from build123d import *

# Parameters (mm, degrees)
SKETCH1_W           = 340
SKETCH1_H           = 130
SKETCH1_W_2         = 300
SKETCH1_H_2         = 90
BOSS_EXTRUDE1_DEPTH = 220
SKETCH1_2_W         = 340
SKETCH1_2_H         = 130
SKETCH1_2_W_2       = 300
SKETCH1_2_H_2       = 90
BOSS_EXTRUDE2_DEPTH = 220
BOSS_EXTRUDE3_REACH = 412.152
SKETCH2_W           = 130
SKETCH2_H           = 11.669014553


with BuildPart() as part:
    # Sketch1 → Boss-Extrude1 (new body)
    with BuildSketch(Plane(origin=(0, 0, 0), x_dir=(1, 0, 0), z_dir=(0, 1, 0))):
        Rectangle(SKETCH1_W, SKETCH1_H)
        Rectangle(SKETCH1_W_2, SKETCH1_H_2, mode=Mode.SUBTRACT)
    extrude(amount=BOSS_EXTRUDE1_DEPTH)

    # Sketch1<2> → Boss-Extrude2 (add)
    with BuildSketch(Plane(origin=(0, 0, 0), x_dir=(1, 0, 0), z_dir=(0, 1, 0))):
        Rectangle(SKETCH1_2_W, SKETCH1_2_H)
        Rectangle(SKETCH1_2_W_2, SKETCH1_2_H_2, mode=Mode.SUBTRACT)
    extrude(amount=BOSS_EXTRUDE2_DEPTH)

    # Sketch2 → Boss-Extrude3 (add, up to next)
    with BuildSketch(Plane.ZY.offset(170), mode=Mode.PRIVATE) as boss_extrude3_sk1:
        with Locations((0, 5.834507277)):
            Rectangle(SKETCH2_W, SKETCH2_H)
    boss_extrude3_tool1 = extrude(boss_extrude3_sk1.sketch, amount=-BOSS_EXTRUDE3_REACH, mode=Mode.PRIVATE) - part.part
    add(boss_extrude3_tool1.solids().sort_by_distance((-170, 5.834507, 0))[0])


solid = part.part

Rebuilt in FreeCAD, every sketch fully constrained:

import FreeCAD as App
import Part
import Sketcher
from FreeCAD import Vector
Q = App.Units.Quantity


def add_polygon(sketch, points):
    """Adds a closed chain of lines whose ends are joined by coincident constraints."""
    first, n = sketch.GeometryCount, len(points)
    for a, b in zip(points, points[1:] + points[:1]):
        sketch.addGeometry(Part.LineSegment(App.Vector(*a, 0), App.Vector(*b, 0)), False)
    for i in range(n):
        sketch.addConstraint(Sketcher.Constraint("Coincident", first + i, 2, first + (i + 1) % n, 1))

doc = App.newDocument("Part")
body = doc.addObject("PartDesign::Body", "Body")

# Sketch on XZ plane
sketch1 = body.newObject("Sketcher::SketchObject", "Sketch")
sketch1.AttachmentSupport = (doc.getObject("XZ_Plane"), [""])
sketch1.MapMode = "FlatFace"
add_polygon(sketch1, [(-170, -65), (-170, 65), (170, 65), (170, -65)])  # lines 0-3
add_polygon(sketch1, [(150, 45), (-150, 45), (-150, -45), (150, -45)])  # lines 4-7
sketch1.addConstraint([
    Sketcher.Constraint("Vertical", 0),
    Sketcher.Constraint("Horizontal", 1),
    Sketcher.Constraint("Vertical", 2),
    Sketcher.Constraint("Horizontal", 3),
    Sketcher.Constraint("Horizontal", 4),
    Sketcher.Constraint("Vertical", 5),
    Sketcher.Constraint("Horizontal", 6),
    Sketcher.Constraint("Vertical", 7),
    Sketcher.Constraint("Symmetric", 0, 2, 2, 2, -1, 1),
    Sketcher.Constraint("Symmetric", 4, 2, 6, 2, -1, 1),
    Sketcher.Constraint("DistanceX", 1, 1, 1, 2, Q("340 mm")),
    Sketcher.Constraint("DistanceX", 4, 2, 4, 1, Q("300 mm")),
    Sketcher.Constraint("DistanceY", 0, 1, 0, 2, Q("130 mm")),
    Sketcher.Constraint("DistanceY", 5, 2, 5, 1, Q("90 mm")),
])
pad1 = body.newObject("PartDesign::Pad", "Pad")
pad1.Profile = sketch1
pad1.Length = 220
pad1.Reversed = True

# Sketch on XZ plane
sketch2 = body.newObject("Sketcher::SketchObject", "Sketch001")
sketch2.AttachmentSupport = (doc.getObject("XZ_Plane"), [""])
sketch2.MapMode = "FlatFace"
add_polygon(sketch2, [(-170, -65), (-170, 65), (170, 65), (170, -65)])  # lines 0-3
add_polygon(sketch2, [(150, 45), (-150, 45), (-150, -45), (150, -45)])  # lines 4-7
sketch2.addConstraint([
    Sketcher.Constraint("Vertical", 0),
    Sketcher.Constraint("Horizontal", 1),
    Sketcher.Constraint("Vertical", 2),
    Sketcher.Constraint("Horizontal", 3),
    Sketcher.Constraint("Horizontal", 4),
    Sketcher.Constraint("Vertical", 5),
    Sketcher.Constraint("Horizontal", 6),
    Sketcher.Constraint("Vertical", 7),
    Sketcher.Constraint("Symmetric", 0, 2, 2, 2, -1, 1),
    Sketcher.Constraint("Symmetric", 4, 2, 6, 2, -1, 1),
    Sketcher.Constraint("DistanceX", 1, 1, 1, 2, Q("340 mm")),
    Sketcher.Constraint("DistanceX", 4, 2, 4, 1, Q("300 mm")),
    Sketcher.Constraint("DistanceY", 0, 1, 0, 2, Q("130 mm")),
    Sketcher.Constraint("DistanceY", 5, 2, 5, 1, Q("90 mm")),
])
pad2 = body.newObject("PartDesign::Pad", "Pad001")
pad2.Profile = sketch2
pad2.Length = 220
pad2.Reversed = True

# Sketch on YZ plane
sketch3 = body.newObject("Sketcher::SketchObject", "Sketch002")
sketch3.AttachmentSupport = (doc.getObject("YZ_Plane"), [""])
sketch3.MapMode = "FlatFace"
sketch3.AttachmentOffset = App.Placement(Vector(0, 0, -170), App.Rotation())
add_polygon(sketch3, [(12, -65), (0, -65), (0, 65), (12, 65)])  # lines 0-3
sketch3.addConstraint([
    Sketcher.Constraint("Horizontal", 0),
    Sketcher.Constraint("Vertical", 1),
    Sketcher.Constraint("Horizontal", 2),
    Sketcher.Constraint("Vertical", 3),
    Sketcher.Constraint("Symmetric", 0, 2, 1, 2, -1, 1),
    Sketcher.Constraint("DistanceY", 1, 1, 1, 2, Q("130 mm")),
    Sketcher.Constraint("DistanceX", 0, 2, 0, 1, Q("11.669015 mm")),
])
pad3 = body.newObject("PartDesign::Pad", "Pad002")
pad3.Profile = sketch3
pad3.Length = 320

doc.recompute()
